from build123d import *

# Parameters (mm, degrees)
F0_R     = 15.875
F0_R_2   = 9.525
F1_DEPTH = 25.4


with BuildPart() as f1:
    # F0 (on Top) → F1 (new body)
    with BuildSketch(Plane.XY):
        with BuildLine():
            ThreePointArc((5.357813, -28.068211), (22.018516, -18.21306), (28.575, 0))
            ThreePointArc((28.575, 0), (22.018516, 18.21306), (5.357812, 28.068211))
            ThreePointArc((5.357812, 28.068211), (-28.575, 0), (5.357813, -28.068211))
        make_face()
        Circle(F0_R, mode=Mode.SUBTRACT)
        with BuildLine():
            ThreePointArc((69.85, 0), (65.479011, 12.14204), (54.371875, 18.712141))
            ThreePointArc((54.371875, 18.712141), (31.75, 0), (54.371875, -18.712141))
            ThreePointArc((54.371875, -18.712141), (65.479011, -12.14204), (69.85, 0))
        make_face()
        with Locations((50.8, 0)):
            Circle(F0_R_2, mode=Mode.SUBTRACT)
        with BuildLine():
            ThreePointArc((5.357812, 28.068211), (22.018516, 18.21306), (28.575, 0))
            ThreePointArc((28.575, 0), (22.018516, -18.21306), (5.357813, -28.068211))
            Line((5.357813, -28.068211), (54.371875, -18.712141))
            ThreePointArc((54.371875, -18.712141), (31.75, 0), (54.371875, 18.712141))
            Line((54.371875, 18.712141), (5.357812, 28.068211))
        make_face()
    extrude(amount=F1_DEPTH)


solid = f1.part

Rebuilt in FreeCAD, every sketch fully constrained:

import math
import FreeCAD as App
import Part
import Sketcher
Q = App.Units.Quantity

doc = App.newDocument("Part")
params = doc.addObject("Spreadsheet::Sheet", "Params")
for row, (alias, value) in enumerate([
    ("sketch1_diameter", "1.25 in"),
    ("sketch1_diameter2", "0.75 in"),
    ("sketch1_radius", "0.75 in"),
    ("sketch1_radius2", "1.125 in"),
    ("pad1_length", "1 in"),
], start=1):
    params.set(f"A{row}", alias)
    params.set(f"B{row}", "=" + value)
    params.setAlias(f"B{row}", alias)

body = doc.addObject("PartDesign::Body", "Body")

sketch1 = doc.addObject("Sketcher::SketchObject", "Sketch")
body.addObject(sketch1)
sketch1.AttachmentSupport = (doc.XY_Plane, [""])
sketch1.MapMode = "FlatFace"
sketch1.addGeometry([
    Part.ArcOfCircle(Part.Circle(App.Vector(0, 0, 0), App.Vector(0, 0, 1), 29), math.radians(79), math.radians(281)),
    Part.LineSegment(App.Vector(5, -28, 0), App.Vector(54, -19, 0)),
    Part.ArcOfCircle(Part.Circle(App.Vector(51, 0, 0), App.Vector(0, 0, 1), 19), math.radians(-79), math.radians(0)),
    Part.ArcOfCircle(Part.Circle(App.Vector(51, 0, 0), App.Vector(0, 0, 1), 19), math.radians(0), math.radians(79)),
    Part.LineSegment(App.Vector(54, 19, 0), App.Vector(5, 28, 0)),
    Part.Circle(App.Vector(0, 0, 0), App.Vector(0, 0, 1), 16),
    Part.Circle(App.Vector(51, 0, 0), App.Vector(0, 0, 1), 10),
], False)
sketch1.addConstraint([
    Sketcher.Constraint("Tangent", 0, 2, 1, 1),
    Sketcher.Constraint("Tangent", 1, 2, 2, 1),
    Sketcher.Constraint("Tangent", 2, 2, 3, 1),
    Sketcher.Constraint("Tangent", 3, 2, 4, 1),
    Sketcher.Constraint("Tangent", 4, 2, 0, 1),
    Sketcher.Constraint("Coincident", 0, 3, -1, 1),
    Sketcher.Constraint("Coincident", 5, 3, -1, 1),
    Sketcher.Constraint("Coincident", 6, 3, 2, 3),
    Sketcher.Constraint("Equal", 2, 3),
    Sketcher.Constraint("PointOnObject", 2, 3, -1),
    Sketcher.Constraint("PointOnObject", 2, 2, -1),
    Sketcher.Constraint("Diameter", 5, Q("1.25 in")),
    Sketcher.Constraint("Diameter", 6, Q("0.75 in")),
    Sketcher.Constraint("Radius", 2, Q("0.75 in")),
    Sketcher.Constraint("DistanceX", -1, 1, 2, 3, Q("2 in")),
    Sketcher.Constraint("Radius", 0, Q("1.125 in")),
])
sketch1.setExpression("Constraints[11]", "Params.sketch1_diameter")
sketch1.setExpression("Constraints[12]", "Params.sketch1_diameter2")
sketch1.setExpression("Constraints[13]", "Params.sketch1_radius")
sketch1.setExpression("Constraints[15]", "Params.sketch1_radius2")
pad1 = doc.addObject("PartDesign::Pad", "Pad")
body.addObject(pad1)
pad1.Profile = sketch1
pad1.setExpression("Length", "Params.pad1_length")

doc.recompute()
